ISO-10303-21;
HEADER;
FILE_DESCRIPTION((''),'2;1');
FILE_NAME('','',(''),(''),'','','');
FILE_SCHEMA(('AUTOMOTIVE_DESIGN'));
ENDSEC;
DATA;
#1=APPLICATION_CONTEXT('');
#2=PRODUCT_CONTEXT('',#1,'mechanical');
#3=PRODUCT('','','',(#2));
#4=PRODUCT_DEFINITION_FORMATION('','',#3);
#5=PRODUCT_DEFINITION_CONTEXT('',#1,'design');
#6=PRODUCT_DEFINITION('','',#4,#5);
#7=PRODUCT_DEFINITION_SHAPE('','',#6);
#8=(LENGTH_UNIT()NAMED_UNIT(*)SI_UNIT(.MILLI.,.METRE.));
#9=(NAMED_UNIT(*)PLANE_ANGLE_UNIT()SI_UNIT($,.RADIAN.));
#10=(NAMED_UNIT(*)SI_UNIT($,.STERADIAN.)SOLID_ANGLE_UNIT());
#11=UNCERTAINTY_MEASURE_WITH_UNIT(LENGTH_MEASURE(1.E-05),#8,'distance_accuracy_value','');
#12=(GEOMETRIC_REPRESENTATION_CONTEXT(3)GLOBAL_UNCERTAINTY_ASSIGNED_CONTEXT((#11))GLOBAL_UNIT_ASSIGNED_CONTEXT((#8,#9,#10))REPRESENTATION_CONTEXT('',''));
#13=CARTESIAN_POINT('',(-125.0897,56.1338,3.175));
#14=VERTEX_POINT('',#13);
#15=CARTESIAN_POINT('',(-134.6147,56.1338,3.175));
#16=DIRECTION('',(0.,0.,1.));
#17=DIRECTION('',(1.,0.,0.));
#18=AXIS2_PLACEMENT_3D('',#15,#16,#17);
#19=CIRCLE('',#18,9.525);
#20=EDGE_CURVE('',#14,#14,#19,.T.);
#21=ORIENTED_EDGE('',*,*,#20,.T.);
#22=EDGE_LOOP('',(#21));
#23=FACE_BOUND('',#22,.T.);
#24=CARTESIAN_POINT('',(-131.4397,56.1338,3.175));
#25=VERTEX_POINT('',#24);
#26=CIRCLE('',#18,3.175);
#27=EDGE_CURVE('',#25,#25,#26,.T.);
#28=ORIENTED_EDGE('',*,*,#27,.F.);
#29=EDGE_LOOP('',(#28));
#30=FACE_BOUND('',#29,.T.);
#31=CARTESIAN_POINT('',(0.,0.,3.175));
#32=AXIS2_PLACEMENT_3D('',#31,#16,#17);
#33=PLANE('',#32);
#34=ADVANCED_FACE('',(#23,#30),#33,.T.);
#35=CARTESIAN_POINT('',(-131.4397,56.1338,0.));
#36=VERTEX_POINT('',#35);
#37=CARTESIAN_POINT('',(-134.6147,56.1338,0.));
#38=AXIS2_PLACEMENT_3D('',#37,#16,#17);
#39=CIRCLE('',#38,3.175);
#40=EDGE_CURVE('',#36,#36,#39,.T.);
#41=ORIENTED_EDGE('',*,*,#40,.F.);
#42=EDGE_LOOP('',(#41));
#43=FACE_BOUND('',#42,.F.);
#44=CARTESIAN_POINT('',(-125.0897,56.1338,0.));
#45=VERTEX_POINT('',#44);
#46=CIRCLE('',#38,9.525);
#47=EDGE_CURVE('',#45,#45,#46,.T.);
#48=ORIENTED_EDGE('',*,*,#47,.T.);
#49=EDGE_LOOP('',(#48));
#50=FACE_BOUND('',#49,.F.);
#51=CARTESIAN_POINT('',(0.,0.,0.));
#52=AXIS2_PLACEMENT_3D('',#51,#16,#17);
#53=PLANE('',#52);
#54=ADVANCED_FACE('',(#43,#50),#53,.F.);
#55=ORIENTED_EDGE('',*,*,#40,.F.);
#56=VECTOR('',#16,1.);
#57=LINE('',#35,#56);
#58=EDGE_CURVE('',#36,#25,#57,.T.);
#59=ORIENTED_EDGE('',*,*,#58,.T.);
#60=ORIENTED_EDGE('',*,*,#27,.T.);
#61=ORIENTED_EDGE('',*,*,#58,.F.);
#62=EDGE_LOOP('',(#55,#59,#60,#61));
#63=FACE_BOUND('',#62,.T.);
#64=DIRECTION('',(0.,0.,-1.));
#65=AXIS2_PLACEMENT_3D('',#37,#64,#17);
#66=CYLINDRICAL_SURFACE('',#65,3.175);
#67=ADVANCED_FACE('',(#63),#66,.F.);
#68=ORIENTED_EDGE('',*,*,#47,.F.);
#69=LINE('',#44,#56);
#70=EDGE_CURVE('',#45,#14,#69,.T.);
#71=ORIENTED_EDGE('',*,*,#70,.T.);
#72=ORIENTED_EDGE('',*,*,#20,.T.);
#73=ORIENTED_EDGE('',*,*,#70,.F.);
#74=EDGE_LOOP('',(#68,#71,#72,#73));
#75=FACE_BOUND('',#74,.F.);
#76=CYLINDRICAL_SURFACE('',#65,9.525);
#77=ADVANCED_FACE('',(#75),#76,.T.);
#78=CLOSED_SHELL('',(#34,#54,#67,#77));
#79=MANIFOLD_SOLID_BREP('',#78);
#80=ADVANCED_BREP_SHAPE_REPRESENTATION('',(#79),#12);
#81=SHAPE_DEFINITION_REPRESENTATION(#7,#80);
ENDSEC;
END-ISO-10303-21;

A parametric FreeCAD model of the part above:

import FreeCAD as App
import Part
import Sketcher

V = App.Vector
Q = App.Units.Quantity

doc = App.newDocument("Part")
params = doc.addObject("Spreadsheet::Sheet", "Params")
for row, (alias, value) in enumerate([
    ("sketch1_diameter", "0.75 in"),
    ("sketch1_diameter2", "0.25 in"),
    ("pad1_length", "0.125 in"),
], start=1):
    params.set(f"A{row}", alias)
    params.set(f"B{row}", "=" + value)
    params.setAlias(f"B{row}", alias)

body = doc.addObject("PartDesign::Body", "Body")

sketch1 = body.newObject("Sketcher::SketchObject", "Sketch")
sketch1.AttachmentSupport = (doc.getObject("XY_Plane"), [""])
sketch1.MapMode = "FlatFace"
sketch1.addGeometry([
    Part.Circle(V(-134.6, 56.1, 0), V(0, 0, 1), 9.5),
    Part.Circle(V(-134.6, 56.1, 0), V(0, 0, 1), 3.2),
], False)
sketch1.addConstraint([
    Sketcher.Constraint("Coincident", 1, 3, 0, 3),
    Sketcher.Constraint("Diameter", 0, Q("0.75 in")),
    Sketcher.Constraint("Diameter", 1, Q("0.25 in")),
    Sketcher.Constraint("DistanceY", -1, 1, 0, 3, Q("2.21 in")),
    Sketcher.Constraint("DistanceX", 0, 3, -1, 1, Q("5.2998 in")),
])
sketch1.setExpression("Constraints[1]", "Params.sketch1_diameter")
sketch1.setExpression("Constraints[2]", "Params.sketch1_diameter2")
pad1 = body.newObject("PartDesign::Pad", "Pad")
pad1.Profile = sketch1
pad1.setExpression("Length", "Params.pad1_length")

doc.recompute()
